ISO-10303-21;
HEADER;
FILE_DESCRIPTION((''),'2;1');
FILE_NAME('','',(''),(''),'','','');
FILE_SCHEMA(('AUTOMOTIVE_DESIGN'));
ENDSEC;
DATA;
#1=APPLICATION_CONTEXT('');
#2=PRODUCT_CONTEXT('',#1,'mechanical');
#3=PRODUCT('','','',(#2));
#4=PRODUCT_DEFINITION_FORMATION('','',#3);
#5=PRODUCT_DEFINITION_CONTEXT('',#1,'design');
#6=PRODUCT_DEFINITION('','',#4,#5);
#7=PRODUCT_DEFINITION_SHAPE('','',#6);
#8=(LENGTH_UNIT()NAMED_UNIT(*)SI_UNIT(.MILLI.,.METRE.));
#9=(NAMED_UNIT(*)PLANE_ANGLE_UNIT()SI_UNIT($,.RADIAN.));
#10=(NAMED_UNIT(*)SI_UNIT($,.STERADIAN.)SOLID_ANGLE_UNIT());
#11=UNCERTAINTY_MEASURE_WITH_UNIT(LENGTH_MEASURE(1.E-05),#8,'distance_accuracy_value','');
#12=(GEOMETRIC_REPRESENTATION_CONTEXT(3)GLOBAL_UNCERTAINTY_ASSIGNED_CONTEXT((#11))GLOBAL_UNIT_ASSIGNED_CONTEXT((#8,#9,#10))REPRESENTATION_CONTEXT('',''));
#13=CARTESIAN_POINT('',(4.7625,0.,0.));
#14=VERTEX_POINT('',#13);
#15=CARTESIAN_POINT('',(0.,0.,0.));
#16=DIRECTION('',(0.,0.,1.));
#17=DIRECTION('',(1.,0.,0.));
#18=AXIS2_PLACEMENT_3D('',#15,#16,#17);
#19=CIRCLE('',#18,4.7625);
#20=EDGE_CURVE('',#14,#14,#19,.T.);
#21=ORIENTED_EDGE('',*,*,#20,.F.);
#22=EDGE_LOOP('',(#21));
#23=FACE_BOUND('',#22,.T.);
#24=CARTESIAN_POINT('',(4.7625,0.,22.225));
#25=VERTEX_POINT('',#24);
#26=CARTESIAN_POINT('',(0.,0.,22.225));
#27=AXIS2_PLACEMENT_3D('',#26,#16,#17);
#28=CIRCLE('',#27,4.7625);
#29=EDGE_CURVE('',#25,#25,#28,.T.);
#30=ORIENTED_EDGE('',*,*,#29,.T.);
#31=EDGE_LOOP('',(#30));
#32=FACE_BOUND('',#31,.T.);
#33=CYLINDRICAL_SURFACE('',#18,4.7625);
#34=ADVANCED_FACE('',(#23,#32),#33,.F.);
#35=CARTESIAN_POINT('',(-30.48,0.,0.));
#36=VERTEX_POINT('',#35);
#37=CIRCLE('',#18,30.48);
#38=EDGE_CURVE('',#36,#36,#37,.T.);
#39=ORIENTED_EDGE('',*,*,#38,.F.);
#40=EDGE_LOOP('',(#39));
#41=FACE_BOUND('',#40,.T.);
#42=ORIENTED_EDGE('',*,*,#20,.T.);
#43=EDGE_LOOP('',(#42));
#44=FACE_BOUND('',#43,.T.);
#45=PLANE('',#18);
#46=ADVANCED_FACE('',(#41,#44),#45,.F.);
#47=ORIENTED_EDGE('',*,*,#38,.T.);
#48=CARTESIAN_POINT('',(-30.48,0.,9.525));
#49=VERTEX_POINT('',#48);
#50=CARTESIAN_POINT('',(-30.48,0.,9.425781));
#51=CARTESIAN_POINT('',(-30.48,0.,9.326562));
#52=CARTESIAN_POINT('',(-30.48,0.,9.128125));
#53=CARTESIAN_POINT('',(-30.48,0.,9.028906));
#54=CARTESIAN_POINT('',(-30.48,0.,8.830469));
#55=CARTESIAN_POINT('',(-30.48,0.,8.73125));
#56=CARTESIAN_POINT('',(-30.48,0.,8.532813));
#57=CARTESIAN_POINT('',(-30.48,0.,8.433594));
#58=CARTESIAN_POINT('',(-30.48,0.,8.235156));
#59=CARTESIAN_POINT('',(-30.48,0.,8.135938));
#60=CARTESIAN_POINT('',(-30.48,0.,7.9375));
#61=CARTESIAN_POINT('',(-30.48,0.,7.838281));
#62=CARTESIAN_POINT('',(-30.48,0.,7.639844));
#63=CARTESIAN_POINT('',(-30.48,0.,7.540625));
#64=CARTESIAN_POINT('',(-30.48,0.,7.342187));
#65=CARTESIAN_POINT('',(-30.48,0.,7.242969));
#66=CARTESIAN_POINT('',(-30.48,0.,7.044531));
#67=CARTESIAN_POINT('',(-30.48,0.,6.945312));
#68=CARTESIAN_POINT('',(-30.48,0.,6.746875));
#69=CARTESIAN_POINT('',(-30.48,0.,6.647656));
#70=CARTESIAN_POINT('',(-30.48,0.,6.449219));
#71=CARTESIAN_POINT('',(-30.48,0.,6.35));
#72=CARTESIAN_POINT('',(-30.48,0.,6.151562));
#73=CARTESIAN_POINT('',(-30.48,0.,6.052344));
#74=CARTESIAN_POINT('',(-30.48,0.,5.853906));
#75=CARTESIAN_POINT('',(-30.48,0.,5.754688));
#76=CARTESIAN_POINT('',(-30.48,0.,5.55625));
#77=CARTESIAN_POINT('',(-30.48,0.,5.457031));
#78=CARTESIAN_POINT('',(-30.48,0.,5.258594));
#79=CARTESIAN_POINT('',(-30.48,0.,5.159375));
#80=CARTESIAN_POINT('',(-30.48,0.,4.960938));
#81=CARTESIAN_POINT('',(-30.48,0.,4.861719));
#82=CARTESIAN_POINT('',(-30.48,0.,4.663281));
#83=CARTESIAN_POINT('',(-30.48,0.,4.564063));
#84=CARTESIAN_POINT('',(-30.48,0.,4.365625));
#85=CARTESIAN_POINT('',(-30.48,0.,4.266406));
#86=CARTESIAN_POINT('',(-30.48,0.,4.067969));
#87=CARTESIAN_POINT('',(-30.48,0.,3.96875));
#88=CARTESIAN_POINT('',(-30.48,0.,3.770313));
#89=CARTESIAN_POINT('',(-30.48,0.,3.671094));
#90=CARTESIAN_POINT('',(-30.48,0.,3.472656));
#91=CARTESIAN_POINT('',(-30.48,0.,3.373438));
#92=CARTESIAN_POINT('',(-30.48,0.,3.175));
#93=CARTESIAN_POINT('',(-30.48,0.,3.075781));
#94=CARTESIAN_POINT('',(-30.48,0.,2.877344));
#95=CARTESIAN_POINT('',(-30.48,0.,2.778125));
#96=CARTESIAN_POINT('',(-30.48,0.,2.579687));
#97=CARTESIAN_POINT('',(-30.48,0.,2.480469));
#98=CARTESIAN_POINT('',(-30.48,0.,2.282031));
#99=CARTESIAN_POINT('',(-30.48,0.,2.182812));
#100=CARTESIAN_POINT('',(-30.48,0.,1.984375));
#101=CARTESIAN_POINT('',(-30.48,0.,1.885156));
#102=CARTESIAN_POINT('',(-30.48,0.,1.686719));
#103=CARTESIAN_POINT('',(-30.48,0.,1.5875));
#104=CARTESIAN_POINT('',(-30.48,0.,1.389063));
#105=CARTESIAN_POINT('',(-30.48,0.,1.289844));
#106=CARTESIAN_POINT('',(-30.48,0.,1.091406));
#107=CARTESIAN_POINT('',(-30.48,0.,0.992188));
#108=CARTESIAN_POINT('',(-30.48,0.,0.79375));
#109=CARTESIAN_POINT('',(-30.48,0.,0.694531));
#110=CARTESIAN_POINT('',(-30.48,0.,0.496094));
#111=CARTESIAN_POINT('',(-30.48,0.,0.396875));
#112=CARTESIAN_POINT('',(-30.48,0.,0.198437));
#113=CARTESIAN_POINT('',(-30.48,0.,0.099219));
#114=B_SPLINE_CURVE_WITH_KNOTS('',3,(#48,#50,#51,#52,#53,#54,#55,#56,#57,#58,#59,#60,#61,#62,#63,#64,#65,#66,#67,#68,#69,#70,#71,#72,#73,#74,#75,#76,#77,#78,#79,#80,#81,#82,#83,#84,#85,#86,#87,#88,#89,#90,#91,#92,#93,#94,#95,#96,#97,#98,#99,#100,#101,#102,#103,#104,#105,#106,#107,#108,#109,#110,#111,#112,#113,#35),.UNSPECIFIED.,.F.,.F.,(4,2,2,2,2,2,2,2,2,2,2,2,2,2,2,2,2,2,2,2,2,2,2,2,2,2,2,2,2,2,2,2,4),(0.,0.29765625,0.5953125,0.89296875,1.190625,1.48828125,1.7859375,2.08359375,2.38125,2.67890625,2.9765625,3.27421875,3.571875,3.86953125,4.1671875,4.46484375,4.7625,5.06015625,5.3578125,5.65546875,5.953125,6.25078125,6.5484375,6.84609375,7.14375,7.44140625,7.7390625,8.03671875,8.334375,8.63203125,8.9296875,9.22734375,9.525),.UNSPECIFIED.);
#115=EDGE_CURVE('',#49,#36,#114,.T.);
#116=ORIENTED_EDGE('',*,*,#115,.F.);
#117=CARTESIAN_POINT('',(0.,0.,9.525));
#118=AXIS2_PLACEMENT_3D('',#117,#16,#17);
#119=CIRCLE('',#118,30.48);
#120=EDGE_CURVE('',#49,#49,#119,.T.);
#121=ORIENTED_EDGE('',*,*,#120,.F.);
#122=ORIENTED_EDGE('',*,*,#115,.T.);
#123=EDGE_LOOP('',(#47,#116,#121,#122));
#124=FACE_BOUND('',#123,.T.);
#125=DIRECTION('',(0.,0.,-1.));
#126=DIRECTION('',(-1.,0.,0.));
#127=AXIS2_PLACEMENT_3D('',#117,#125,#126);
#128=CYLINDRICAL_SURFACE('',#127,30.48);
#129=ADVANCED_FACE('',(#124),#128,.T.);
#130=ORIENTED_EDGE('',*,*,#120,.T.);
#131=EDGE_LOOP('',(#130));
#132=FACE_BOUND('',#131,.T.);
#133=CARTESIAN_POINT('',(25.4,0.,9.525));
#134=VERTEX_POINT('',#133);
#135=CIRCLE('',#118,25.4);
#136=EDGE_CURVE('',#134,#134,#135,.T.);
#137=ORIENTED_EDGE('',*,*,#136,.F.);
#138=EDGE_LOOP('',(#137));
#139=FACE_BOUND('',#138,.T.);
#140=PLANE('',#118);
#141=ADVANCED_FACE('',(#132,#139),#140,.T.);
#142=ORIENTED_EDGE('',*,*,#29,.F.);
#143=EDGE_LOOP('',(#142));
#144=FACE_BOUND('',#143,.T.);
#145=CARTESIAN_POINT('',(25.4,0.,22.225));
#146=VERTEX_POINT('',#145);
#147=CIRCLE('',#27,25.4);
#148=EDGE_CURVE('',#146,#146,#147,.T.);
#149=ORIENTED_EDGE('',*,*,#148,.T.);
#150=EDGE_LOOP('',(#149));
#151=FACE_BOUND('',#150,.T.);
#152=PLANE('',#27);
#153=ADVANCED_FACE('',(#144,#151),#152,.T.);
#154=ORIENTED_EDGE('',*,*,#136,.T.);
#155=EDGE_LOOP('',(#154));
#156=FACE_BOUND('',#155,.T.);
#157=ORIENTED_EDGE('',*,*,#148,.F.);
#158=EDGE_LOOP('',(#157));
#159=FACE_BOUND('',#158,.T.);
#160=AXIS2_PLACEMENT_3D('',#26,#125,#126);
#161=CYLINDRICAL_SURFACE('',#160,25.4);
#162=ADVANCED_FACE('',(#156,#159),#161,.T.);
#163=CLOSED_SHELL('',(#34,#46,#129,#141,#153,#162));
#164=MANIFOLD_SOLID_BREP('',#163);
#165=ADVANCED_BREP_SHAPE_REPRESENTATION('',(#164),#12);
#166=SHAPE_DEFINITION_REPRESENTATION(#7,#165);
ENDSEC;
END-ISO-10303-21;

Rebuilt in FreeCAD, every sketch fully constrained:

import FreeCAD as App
import Part
import Sketcher
Q = App.Units.Quantity

doc = App.newDocument("Part")
params = doc.addObject("Spreadsheet::Sheet", "Params")
for row, (alias, value) in enumerate([
    ("sketch1_diameter", "2.4 in"),
    ("pad1_length", "0.375 in"),
    ("sketch2_diameter", "2 in"),
    ("pad2_length", "0.5 in"),
    ("sketch3_diameter", "0.375 in"),
], start=1):
    params.set(f"A{row}", alias)
    params.set(f"B{row}", "=" + value)
    params.setAlias(f"B{row}", alias)

body = doc.addObject("PartDesign::Body", "Body")

# Sketch on XY plane
sketch1 = doc.addObject("Sketcher::SketchObject", "Sketch")
body.addObject(sketch1)
sketch1.AttachmentSupport = (doc.XY_Plane, [""])
sketch1.MapMode = "FlatFace"
sketch1.addGeometry(Part.Circle(App.Vector(0, 0, 0), App.Vector(0, 0, 1), 30), False)
sketch1.addConstraint([
    Sketcher.Constraint("Coincident", 0, 3, -1, 1),
    Sketcher.Constraint("Diameter", 0, Q("2.4 in")),
])
sketch1.setExpression("Constraints[1]", "Params.sketch1_diameter")
pad1 = doc.addObject("PartDesign::Pad", "Pad")
body.addObject(pad1)
pad1.Profile = sketch1
pad1.setExpression("Length", "Params.pad1_length")

# Sketch on XY plane
sketch2 = doc.addObject("Sketcher::SketchObject", "Sketch001")
body.addObject(sketch2)
sketch2.AttachmentSupport = (doc.XY_Plane, [""])
sketch2.MapMode = "FlatFace"
sketch2.AttachmentOffset = App.Placement(App.Vector(0, 0, 0.375 * 25.4), App.Rotation())
sketch2.addGeometry(Part.Circle(App.Vector(0, 0, 0), App.Vector(0, 0, 1), 25), False)
sketch2.addConstraint([
    Sketcher.Constraint("Coincident", 0, 3, -1, 1),
    Sketcher.Constraint("Diameter", 0, Q("2 in")),
])
sketch2.setExpression("Constraints[1]", "Params.sketch2_diameter")
pad2 = doc.addObject("PartDesign::Pad", "Pad001")
body.addObject(pad2)
pad2.Profile = sketch2
pad2.setExpression("Length", "Params.pad2_length")

# Sketch on XY plane
sketch3 = doc.addObject("Sketcher::SketchObject", "Sketch002")
body.addObject(sketch3)
sketch3.AttachmentSupport = (doc.XY_Plane, [""])
sketch3.MapMode = "FlatFace"
sketch3.AttachmentOffset = App.Placement(App.Vector(0, 0, 0.875 * 25.4), App.Rotation())
sketch3.addGeometry(Part.Circle(App.Vector(0, 0, 0), App.Vector(0, 0, 1), 4.8), False)
sketch3.addConstraint([
    Sketcher.Constraint("Coincident", 0, 3, -1, 1),
    Sketcher.Constraint("Diameter", 0, Q("0.375 in")),
])
sketch3.setExpression("Constraints[1]", "Params.sketch3_diameter")
pocket1 = doc.addObject("PartDesign::Pocket", "Pocket")
body.addObject(pocket1)
pocket1.Profile = sketch3
pocket1.Type = "ThroughAll"

doc.recompute()
